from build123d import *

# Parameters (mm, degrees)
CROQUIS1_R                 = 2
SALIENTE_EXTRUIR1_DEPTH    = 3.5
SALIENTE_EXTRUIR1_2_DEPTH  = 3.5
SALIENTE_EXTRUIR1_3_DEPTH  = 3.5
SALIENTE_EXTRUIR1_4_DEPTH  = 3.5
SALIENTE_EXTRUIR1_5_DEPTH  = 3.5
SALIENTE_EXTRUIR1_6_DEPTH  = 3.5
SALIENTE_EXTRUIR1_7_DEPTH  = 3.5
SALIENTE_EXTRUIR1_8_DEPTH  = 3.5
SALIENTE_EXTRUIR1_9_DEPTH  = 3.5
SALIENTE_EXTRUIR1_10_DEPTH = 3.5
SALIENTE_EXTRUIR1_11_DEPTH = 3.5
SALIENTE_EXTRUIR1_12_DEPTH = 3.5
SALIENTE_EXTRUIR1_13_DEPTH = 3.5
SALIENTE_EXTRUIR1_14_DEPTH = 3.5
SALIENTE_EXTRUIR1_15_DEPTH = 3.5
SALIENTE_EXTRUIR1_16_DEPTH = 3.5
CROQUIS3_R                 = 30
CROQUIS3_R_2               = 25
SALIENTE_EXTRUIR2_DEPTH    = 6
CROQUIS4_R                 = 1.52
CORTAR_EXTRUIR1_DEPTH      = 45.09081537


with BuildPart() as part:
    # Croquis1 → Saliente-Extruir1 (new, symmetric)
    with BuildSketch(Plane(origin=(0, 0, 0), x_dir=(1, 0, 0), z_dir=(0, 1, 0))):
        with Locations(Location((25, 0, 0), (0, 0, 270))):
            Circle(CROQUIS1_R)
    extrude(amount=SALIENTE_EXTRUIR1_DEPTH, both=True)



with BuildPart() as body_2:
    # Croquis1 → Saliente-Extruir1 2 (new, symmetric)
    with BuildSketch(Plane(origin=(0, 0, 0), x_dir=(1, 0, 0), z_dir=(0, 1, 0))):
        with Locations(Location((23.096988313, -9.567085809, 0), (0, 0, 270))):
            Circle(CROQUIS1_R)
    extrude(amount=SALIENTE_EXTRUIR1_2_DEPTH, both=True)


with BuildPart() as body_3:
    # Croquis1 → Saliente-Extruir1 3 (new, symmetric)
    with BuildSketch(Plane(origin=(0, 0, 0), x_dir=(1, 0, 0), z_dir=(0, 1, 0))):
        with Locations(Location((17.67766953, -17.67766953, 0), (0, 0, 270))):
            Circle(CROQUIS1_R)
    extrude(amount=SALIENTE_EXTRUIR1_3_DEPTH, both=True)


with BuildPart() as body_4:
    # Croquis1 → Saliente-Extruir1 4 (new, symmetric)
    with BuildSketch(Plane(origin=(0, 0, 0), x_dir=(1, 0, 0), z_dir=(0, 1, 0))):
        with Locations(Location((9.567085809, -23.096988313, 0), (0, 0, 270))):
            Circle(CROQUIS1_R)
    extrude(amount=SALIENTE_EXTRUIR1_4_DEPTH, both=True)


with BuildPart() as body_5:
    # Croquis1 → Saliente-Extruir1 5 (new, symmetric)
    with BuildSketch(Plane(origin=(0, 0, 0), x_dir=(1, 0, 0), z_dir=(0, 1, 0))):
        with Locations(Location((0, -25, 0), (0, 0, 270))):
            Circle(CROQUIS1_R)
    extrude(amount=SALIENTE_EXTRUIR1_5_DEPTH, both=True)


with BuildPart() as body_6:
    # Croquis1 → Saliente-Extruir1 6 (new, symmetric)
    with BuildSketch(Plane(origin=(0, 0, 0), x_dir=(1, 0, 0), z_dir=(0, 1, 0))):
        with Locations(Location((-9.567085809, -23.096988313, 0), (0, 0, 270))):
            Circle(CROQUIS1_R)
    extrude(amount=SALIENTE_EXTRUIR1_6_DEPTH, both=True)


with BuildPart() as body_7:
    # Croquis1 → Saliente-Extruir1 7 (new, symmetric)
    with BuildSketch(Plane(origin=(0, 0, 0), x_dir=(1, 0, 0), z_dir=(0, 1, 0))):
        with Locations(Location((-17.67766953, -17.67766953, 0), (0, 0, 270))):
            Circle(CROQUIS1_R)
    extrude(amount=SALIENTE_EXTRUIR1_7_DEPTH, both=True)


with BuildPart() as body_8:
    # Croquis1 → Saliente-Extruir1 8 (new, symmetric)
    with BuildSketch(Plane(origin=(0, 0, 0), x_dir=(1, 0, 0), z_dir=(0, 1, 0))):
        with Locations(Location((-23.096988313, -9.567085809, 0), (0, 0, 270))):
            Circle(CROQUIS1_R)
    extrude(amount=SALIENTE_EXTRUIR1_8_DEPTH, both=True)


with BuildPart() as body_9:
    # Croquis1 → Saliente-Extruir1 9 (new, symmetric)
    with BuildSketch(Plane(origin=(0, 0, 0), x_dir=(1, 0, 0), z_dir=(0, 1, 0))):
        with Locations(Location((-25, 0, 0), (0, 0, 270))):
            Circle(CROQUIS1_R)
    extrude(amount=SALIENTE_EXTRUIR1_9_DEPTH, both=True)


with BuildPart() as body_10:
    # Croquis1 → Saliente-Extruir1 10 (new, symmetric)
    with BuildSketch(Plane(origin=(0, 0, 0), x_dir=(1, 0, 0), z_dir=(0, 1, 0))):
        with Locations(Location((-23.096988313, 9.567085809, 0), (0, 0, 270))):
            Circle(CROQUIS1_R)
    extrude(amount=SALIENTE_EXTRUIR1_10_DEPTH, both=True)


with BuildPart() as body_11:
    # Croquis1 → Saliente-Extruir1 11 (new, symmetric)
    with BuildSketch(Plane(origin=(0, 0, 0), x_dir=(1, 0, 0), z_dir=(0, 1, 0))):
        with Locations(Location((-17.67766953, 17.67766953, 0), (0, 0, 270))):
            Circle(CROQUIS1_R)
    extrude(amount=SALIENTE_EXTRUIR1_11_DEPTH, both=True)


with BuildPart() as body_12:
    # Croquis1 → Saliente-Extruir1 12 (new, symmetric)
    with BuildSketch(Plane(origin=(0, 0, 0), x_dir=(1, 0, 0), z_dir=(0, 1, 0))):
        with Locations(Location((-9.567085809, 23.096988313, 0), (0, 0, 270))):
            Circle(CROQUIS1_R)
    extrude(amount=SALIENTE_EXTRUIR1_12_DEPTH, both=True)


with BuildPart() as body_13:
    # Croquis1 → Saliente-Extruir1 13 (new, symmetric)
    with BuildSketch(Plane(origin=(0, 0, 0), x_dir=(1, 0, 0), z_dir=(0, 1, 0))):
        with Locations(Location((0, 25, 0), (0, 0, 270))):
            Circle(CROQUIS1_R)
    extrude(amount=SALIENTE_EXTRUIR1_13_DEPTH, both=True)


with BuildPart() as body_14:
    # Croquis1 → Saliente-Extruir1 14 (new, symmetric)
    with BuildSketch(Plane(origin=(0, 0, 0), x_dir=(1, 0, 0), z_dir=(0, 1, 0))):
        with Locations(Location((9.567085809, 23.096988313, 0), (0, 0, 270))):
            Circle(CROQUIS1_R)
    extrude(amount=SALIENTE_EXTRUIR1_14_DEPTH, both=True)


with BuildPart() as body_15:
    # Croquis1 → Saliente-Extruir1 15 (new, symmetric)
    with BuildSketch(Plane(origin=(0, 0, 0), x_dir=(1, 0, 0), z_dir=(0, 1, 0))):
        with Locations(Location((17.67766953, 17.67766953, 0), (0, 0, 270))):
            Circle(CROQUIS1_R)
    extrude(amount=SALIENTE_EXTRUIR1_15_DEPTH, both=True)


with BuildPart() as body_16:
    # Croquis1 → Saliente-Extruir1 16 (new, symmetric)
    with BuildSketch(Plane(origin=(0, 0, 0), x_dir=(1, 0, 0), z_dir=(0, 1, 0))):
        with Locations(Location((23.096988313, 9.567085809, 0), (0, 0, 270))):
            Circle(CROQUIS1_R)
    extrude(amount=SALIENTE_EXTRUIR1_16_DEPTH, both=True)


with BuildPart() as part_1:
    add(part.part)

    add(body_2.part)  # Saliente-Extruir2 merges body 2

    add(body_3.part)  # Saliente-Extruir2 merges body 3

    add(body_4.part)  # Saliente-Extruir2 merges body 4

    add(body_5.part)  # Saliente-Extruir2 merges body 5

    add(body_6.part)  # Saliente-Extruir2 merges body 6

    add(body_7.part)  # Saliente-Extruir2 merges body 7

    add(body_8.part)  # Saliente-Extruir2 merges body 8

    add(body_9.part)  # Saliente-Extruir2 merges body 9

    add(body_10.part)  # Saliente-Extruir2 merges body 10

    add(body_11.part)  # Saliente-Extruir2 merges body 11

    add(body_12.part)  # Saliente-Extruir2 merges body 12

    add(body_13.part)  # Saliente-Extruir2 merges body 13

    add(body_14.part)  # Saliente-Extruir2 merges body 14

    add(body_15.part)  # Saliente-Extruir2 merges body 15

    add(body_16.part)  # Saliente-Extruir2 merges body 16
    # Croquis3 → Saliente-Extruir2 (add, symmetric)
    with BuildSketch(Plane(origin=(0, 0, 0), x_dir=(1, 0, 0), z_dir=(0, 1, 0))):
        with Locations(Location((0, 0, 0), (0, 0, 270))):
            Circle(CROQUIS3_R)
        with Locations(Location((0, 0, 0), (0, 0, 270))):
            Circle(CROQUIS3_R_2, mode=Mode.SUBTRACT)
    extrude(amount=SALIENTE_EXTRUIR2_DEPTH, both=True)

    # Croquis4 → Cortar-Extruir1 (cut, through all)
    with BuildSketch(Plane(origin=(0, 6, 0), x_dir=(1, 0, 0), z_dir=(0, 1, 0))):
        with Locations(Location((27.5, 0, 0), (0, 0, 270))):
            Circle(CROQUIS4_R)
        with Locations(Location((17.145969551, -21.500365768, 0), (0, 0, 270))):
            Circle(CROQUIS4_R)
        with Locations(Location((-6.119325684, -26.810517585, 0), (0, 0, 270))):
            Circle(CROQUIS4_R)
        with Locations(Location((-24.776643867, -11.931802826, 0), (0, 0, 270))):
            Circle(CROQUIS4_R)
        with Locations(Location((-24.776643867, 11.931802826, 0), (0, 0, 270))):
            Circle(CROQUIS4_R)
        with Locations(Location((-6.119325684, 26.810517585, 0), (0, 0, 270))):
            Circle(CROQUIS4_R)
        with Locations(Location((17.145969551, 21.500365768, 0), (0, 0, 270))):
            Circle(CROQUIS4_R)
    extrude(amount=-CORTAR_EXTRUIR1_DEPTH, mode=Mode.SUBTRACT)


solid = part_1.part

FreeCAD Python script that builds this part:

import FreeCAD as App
import Part
import Sketcher

doc = App.newDocument("Part")
body = doc.addObject("PartDesign::Body", "Body")

# Sketch on XZ plane
sketch1 = body.newObject("Sketcher::SketchObject", "Sketch")
sketch1.AttachmentSupport = (doc.getObject("XZ_Plane"), [""])
sketch1.MapMode = "FlatFace"
sketch1.addGeometry(Part.Circle(App.Vector(25, 0, 0), App.Vector(0, 0, 1), 2), False)
sketch1.addConstraint([
    Sketcher.Constraint("PointOnObject", 0, 3, -1),
    Sketcher.Constraint("Diameter", 0, 4.0),
    Sketcher.Constraint("DistanceX", -1, 1, 0, 3, 25.0),
])
pad1 = body.newObject("PartDesign::Pad", "Pad")
pad1.Profile = sketch1
pad1.Length = 7
pad1.Midplane = True
body2 = doc.addObject("PartDesign::Body", "Body001")

# Sketch on XZ plane
sketch2 = body2.newObject("Sketcher::SketchObject", "Sketch001")
sketch2.AttachmentSupport = (doc.getObject("XZ_Plane001"), [""])
sketch2.MapMode = "FlatFace"
sketch2.addGeometry(Part.Circle(App.Vector(23.1, 9.6, 0), App.Vector(0, 0, 1), 2), False)
sketch2.addConstraint([
    Sketcher.Constraint("Diameter", 0, 4.0),
    Sketcher.Constraint("DistanceX", -1, 1, 0, 3, 23.096988),
    Sketcher.Constraint("DistanceY", -1, 1, 0, 3, 9.567086),
])
pad2 = body2.newObject("PartDesign::Pad", "Pad001")
pad2.Profile = sketch2
pad2.Length = 7
pad2.Midplane = True
body3 = doc.addObject("PartDesign::Body", "Body002")

# Sketch on XZ plane
sketch3 = body3.newObject("Sketcher::SketchObject", "Sketch002")
sketch3.AttachmentSupport = (doc.getObject("XZ_Plane002"), [""])
sketch3.MapMode = "FlatFace"
sketch3.addGeometry(Part.Circle(App.Vector(17.7, 17.7, 0), App.Vector(0, 0, 1), 2), False)
sketch3.addConstraint([
    Sketcher.Constraint("Diameter", 0, 4.0),
    Sketcher.Constraint("DistanceX", -1, 1, 0, 3, 17.67767),
    Sketcher.Constraint("DistanceY", -1, 1, 0, 3, 17.67767),
])
pad3 = body3.newObject("PartDesign::Pad", "Pad002")
pad3.Profile = sketch3
pad3.Length = 7
pad3.Midplane = True
body4 = doc.addObject("PartDesign::Body", "Body003")

# Sketch on XZ plane
sketch4 = body4.newObject("Sketcher::SketchObject", "Sketch003")
sketch4.AttachmentSupport = (doc.getObject("XZ_Plane003"), [""])
sketch4.MapMode = "FlatFace"
sketch4.addGeometry(Part.Circle(App.Vector(9.6, 23.1, 0), App.Vector(0, 0, 1), 2), False)
sketch4.addConstraint([
    Sketcher.Constraint("Diameter", 0, 4.0),
    Sketcher.Constraint("DistanceY", -1, 1, 0, 3, 23.096988),
    Sketcher.Constraint("DistanceX", -1, 1, 0, 3, 9.567086),
])
pad4 = body4.newObject("PartDesign::Pad", "Pad003")
pad4.Profile = sketch4
pad4.Length = 7
pad4.Midplane = True
body5 = doc.addObject("PartDesign::Body", "Body004")

# Sketch on XZ plane
sketch5 = body5.newObject("Sketcher::SketchObject", "Sketch004")
sketch5.AttachmentSupport = (doc.getObject("XZ_Plane004"), [""])
sketch5.MapMode = "FlatFace"
sketch5.addGeometry(Part.Circle(App.Vector(0, 25, 0), App.Vector(0, 0, 1), 2), False)
sketch5.addConstraint([
    Sketcher.Constraint("PointOnObject", 0, 3, -2),
    Sketcher.Constraint("Diameter", 0, 4.0),
    Sketcher.Constraint("DistanceY", -1, 1, 0, 3, 25.0),
])
pad5 = body5.newObject("PartDesign::Pad", "Pad004")
pad5.Profile = sketch5
pad5.Length = 7
pad5.Midplane = True
body6 = doc.addObject("PartDesign::Body", "Body005")

# Sketch on XZ plane
sketch6 = body6.newObject("Sketcher::SketchObject", "Sketch005")
sketch6.AttachmentSupport = (doc.getObject("XZ_Plane005"), [""])
sketch6.MapMode = "FlatFace"
sketch6.addGeometry(Part.Circle(App.Vector(-9.6, 23.1, 0), App.Vector(0, 0, 1), 2), False)
sketch6.addConstraint([
    Sketcher.Constraint("Diameter", 0, 4.0),
    Sketcher.Constraint("DistanceY", -1, 1, 0, 3, 23.096988),
    Sketcher.Constraint("DistanceX", 0, 3, -1, 1, 9.567086),
])
pad6 = body6.newObject("PartDesign::Pad", "Pad005")
pad6.Profile = sketch6
pad6.Length = 7
pad6.Midplane = True
body7 = doc.addObject("PartDesign::Body", "Body006")

# Sketch on XZ plane
sketch7 = body7.newObject("Sketcher::SketchObject", "Sketch006")
sketch7.AttachmentSupport = (doc.getObject("XZ_Plane006"), [""])
sketch7.MapMode = "FlatFace"
sketch7.addGeometry(Part.Circle(App.Vector(-17.7, 17.7, 0), App.Vector(0, 0, 1), 2), False)
sketch7.addConstraint([
    Sketcher.Constraint("Diameter", 0, 4.0),
    Sketcher.Constraint("DistanceX", 0, 3, -1, 1, 17.67767),
    Sketcher.Constraint("DistanceY", -1, 1, 0, 3, 17.67767),
])
pad7 = body7.newObject("PartDesign::Pad", "Pad006")
pad7.Profile = sketch7
pad7.Length = 7
pad7.Midplane = True
body8 = doc.addObject("PartDesign::Body", "Body007")

# Sketch on XZ plane
sketch8 = body8.newObject("Sketcher::SketchObject", "Sketch007")
sketch8.AttachmentSupport = (doc.getObject("XZ_Plane007"), [""])
sketch8.MapMode = "FlatFace"
sketch8.addGeometry(Part.Circle(App.Vector(-23.1, 9.6, 0), App.Vector(0, 0, 1), 2), False)
sketch8.addConstraint([
    Sketcher.Constraint("Diameter", 0, 4.0),
    Sketcher.Constraint("DistanceX", 0, 3, -1, 1, 23.096988),
    Sketcher.Constraint("DistanceY", -1, 1, 0, 3, 9.567086),
])
pad8 = body8.newObject("PartDesign::Pad", "Pad007")
pad8.Profile = sketch8
pad8.Length = 7
pad8.Midplane = True
body9 = doc.addObject("PartDesign::Body", "Body008")

# Sketch on XZ plane
sketch9 = body9.newObject("Sketcher::SketchObject", "Sketch008")
sketch9.AttachmentSupport = (doc.getObject("XZ_Plane008"), [""])
sketch9.MapMode = "FlatFace"
sketch9.addGeometry(Part.Circle(App.Vector(-25, 0, 0), App.Vector(0, 0, 1), 2), False)
sketch9.addConstraint([
    Sketcher.Constraint("PointOnObject", 0, 3, -1),
    Sketcher.Constraint("Diameter", 0, 4.0),
    Sketcher.Constraint("DistanceX", 0, 3, -1, 1, 25.0),
])
pad9 = body9.newObject("PartDesign::Pad", "Pad008")
pad9.Profile = sketch9
pad9.Length = 7
pad9.Midplane = True
body10 = doc.addObject("PartDesign::Body", "Body009")

# Sketch on XZ plane
sketch10 = body10.newObject("Sketcher::SketchObject", "Sketch009")
sketch10.AttachmentSupport = (doc.getObject("XZ_Plane009"), [""])
sketch10.MapMode = "FlatFace"
sketch10.addGeometry(Part.Circle(App.Vector(-23.1, -9.6, 0), App.Vector(0, 0, 1), 2), False)
sketch10.addConstraint([
    Sketcher.Constraint("Diameter", 0, 4.0),
    Sketcher.Constraint("DistanceX", 0, 3, -1, 1, 23.096988),
    Sketcher.Constraint("DistanceY", 0, 3, -1, 1, 9.567086),
])
pad10 = body10.newObject("PartDesign::Pad", "Pad009")
pad10.Profile = sketch10
pad10.Length = 7
pad10.Midplane = True
body11 = doc.addObject("PartDesign::Body", "Body010")

# Sketch on XZ plane
sketch11 = body11.newObject("Sketcher::SketchObject", "Sketch010")
sketch11.AttachmentSupport = (doc.getObject("XZ_Plane010"), [""])
sketch11.MapMode = "FlatFace"
sketch11.addGeometry(Part.Circle(App.Vector(-17.7, -17.7, 0), App.Vector(0, 0, 1), 2), False)
sketch11.addConstraint([
    Sketcher.Constraint("Diameter", 0, 4.0),
    Sketcher.Constraint("DistanceX", 0, 3, -1, 1, 17.67767),
    Sketcher.Constraint("DistanceY", 0, 3, -1, 1, 17.67767),
])
pad11 = body11.newObject("PartDesign::Pad", "Pad010")
pad11.Profile = sketch11
pad11.Length = 7
pad11.Midplane = True
body12 = doc.addObject("PartDesign::Body", "Body011")

# Sketch on XZ plane
sketch12 = body12.newObject("Sketcher::SketchObject", "Sketch011")
sketch12.AttachmentSupport = (doc.getObject("XZ_Plane011"), [""])
sketch12.MapMode = "FlatFace"
sketch12.addGeometry(Part.Circle(App.Vector(-9.6, -23.1, 0), App.Vector(0, 0, 1), 2), False)
sketch12.addConstraint([
    Sketcher.Constraint("Diameter", 0, 4.0),
    Sketcher.Constraint("DistanceY", 0, 3, -1, 1, 23.096988),
    Sketcher.Constraint("DistanceX", 0, 3, -1, 1, 9.567086),
])
pad12 = body12.newObject("PartDesign::Pad", "Pad011")
pad12.Profile = sketch12
pad12.Length = 7
pad12.Midplane = True
body13 = doc.addObject("PartDesign::Body", "Body012")

# Sketch on XZ plane
sketch13 = body13.newObject("Sketcher::SketchObject", "Sketch012")
sketch13.AttachmentSupport = (doc.getObject("XZ_Plane012"), [""])
sketch13.MapMode = "FlatFace"
sketch13.addGeometry(Part.Circle(App.Vector(0, -25, 0), App.Vector(0, 0, 1), 2), False)
sketch13.addConstraint([
    Sketcher.Constraint("PointOnObject", 0, 3, -2),
    Sketcher.Constraint("Diameter", 0, 4.0),
    Sketcher.Constraint("DistanceY", 0, 3, -1, 1, 25.0),
])
pad13 = body13.newObject("PartDesign::Pad", "Pad012")
pad13.Profile = sketch13
pad13.Length = 7
pad13.Midplane = True
body14 = doc.addObject("PartDesign::Body", "Body013")

# Sketch on XZ plane
sketch14 = body14.newObject("Sketcher::SketchObject", "Sketch013")
sketch14.AttachmentSupport = (doc.getObject("XZ_Plane013"), [""])
sketch14.MapMode = "FlatFace"
sketch14.addGeometry(Part.Circle(App.Vector(9.6, -23.1, 0), App.Vector(0, 0, 1), 2), False)
sketch14.addConstraint([
    Sketcher.Constraint("Diameter", 0, 4.0),
    Sketcher.Constraint("DistanceY", 0, 3, -1, 1, 23.096988),
    Sketcher.Constraint("DistanceX", -1, 1, 0, 3, 9.567086),
])
pad14 = body14.newObject("PartDesign::Pad", "Pad013")
pad14.Profile = sketch14
pad14.Length = 7
pad14.Midplane = True
body15 = doc.addObject("PartDesign::Body", "Body014")

# Sketch on XZ plane
sketch15 = body15.newObject("Sketcher::SketchObject", "Sketch014")
sketch15.AttachmentSupport = (doc.getObject("XZ_Plane014"), [""])
sketch15.MapMode = "FlatFace"
sketch15.addGeometry(Part.Circle(App.Vector(17.7, -17.7, 0), App.Vector(0, 0, 1), 2), False)
sketch15.addConstraint([
    Sketcher.Constraint("Diameter", 0, 4.0),
    Sketcher.Constraint("DistanceX", -1, 1, 0, 3, 17.67767),
    Sketcher.Constraint("DistanceY", 0, 3, -1, 1, 17.67767),
])
pad15 = body15.newObject("PartDesign::Pad", "Pad014")
pad15.Profile = sketch15
pad15.Length = 7
pad15.Midplane = True
body16 = doc.addObject("PartDesign::Body", "Body015")

# Sketch on XZ plane
sketch16 = body16.newObject("Sketcher::SketchObject", "Sketch015")
sketch16.AttachmentSupport = (doc.getObject("XZ_Plane015"), [""])
sketch16.MapMode = "FlatFace"
sketch16.addGeometry(Part.Circle(App.Vector(23.1, -9.6, 0), App.Vector(0, 0, 1), 2), False)
sketch16.addConstraint([
    Sketcher.Constraint("Diameter", 0, 4.0),
    Sketcher.Constraint("DistanceX", -1, 1, 0, 3, 23.096988),
    Sketcher.Constraint("DistanceY", 0, 3, -1, 1, 9.567086),
])
pad16 = body16.newObject("PartDesign::Pad", "Pad015")
pad16.Profile = sketch16
pad16.Length = 7
pad16.Midplane = True
body.AllowCompound = True
doc.recompute()

boolean = body.newObject("PartDesign::Boolean", "Boolean")
boolean.Type = "Fuse"
boolean.addObjects([body2])
doc.recompute()

boolean2 = body.newObject("PartDesign::Boolean", "Boolean001")
boolean2.Type = "Fuse"
boolean2.addObjects([body3])
doc.recompute()

boolean3 = body.newObject("PartDesign::Boolean", "Boolean002")
boolean3.Type = "Fuse"
boolean3.addObjects([body4])
doc.recompute()

boolean4 = body.newObject("PartDesign::Boolean", "Boolean003")
boolean4.Type = "Fuse"
boolean4.addObjects([body5])
doc.recompute()

boolean5 = body.newObject("PartDesign::Boolean", "Boolean004")
boolean5.Type = "Fuse"
boolean5.addObjects([body6])
doc.recompute()

boolean6 = body.newObject("PartDesign::Boolean", "Boolean005")
boolean6.Type = "Fuse"
boolean6.addObjects([body7])
doc.recompute()

boolean7 = body.newObject("PartDesign::Boolean", "Boolean006")
boolean7.Type = "Fuse"
boolean7.addObjects([body8])
doc.recompute()

boolean8 = body.newObject("PartDesign::Boolean", "Boolean007")
boolean8.Type = "Fuse"
boolean8.addObjects([body9])
doc.recompute()

boolean9 = body.newObject("PartDesign::Boolean", "Boolean008")
boolean9.Type = "Fuse"
boolean9.addObjects([body10])
doc.recompute()

boolean10 = body.newObject("PartDesign::Boolean", "Boolean009")
boolean10.Type = "Fuse"
boolean10.addObjects([body11])
doc.recompute()

boolean11 = body.newObject("PartDesign::Boolean", "Boolean010")
boolean11.Type = "Fuse"
boolean11.addObjects([body12])
doc.recompute()

boolean12 = body.newObject("PartDesign::Boolean", "Boolean011")
boolean12.Type = "Fuse"
boolean12.addObjects([body13])
doc.recompute()

boolean13 = body.newObject("PartDesign::Boolean", "Boolean012")
boolean13.Type = "Fuse"
boolean13.addObjects([body14])
doc.recompute()

boolean14 = body.newObject("PartDesign::Boolean", "Boolean013")
boolean14.Type = "Fuse"
boolean14.addObjects([body15])
doc.recompute()

boolean15 = body.newObject("PartDesign::Boolean", "Boolean014")
boolean15.Type = "Fuse"
boolean15.addObjects([body16])

# Sketch on XZ plane
sketch17 = body.newObject("Sketcher::SketchObject", "Sketch016")
sketch17.AttachmentSupport = (doc.getObject("XZ_Plane"), [""])
sketch17.MapMode = "FlatFace"
sketch17.addGeometry([
    Part.Circle(App.Vector(0, 0, 0), App.Vector(0, 0, 1), 30),
    Part.Circle(App.Vector(0, 0, 0), App.Vector(0, 0, 1), 25),
], False)
sketch17.addConstraint([
    Sketcher.Constraint("Coincident", 0, 3, -1, 1),
    Sketcher.Constraint("Coincident", 1, 3, -1, 1),
    Sketcher.Constraint("Diameter", 0, 60.0),
    Sketcher.Constraint("Diameter", 1, 50.0),
])
pad17 = body.newObject("PartDesign::Pad", "Pad016")
pad17.Profile = sketch17
pad17.Length = 12
pad17.Midplane = True

# Sketch on XZ plane
sketch18 = body.newObject("Sketcher::SketchObject", "Sketch017")
sketch18.AttachmentSupport = (doc.getObject("XZ_Plane"), [""])
sketch18.MapMode = "FlatFace"
sketch18.AttachmentOffset = App.Placement(App.Vector(0, 0, -6), App.Rotation())
sketch18.addGeometry([
    Part.Circle(App.Vector(27.5, 0, 0), App.Vector(0, 0, 1), 1.5),  # 0
    Part.Circle(App.Vector(17.1, 21.5, 0), App.Vector(0, 0, 1), 1.5),  # 1
    Part.Circle(App.Vector(-6.1, 26.8, 0), App.Vector(0, 0, 1), 1.5),  # 2
    Part.Circle(App.Vector(-24.8, 11.9, 0), App.Vector(0, 0, 1), 1.5),  # 3
    Part.Circle(App.Vector(-24.8, -11.9, 0), App.Vector(0, 0, 1), 1.5),  # 4
    Part.Circle(App.Vector(-6.1, -26.8, 0), App.Vector(0, 0, 1), 1.5),  # 5
    Part.Circle(App.Vector(17.1, -21.5, 0), App.Vector(0, 0, 1), 1.5),  # 6
], False)
sketch18.addConstraint([
    Sketcher.Constraint("Equal", 0, 1),
    Sketcher.Constraint("Equal", 1, 2),
    Sketcher.Constraint("Equal", 2, 3),
    Sketcher.Constraint("Equal", 3, 4),
    Sketcher.Constraint("Equal", 4, 5),
    Sketcher.Constraint("Equal", 5, 6),
    Sketcher.Constraint("Symmetric", 3, 3, 4, 3, -1),
    Sketcher.Constraint("Symmetric", 2, 3, 5, 3, -1),
    Sketcher.Constraint("Symmetric", 1, 3, 6, 3, -1),
    Sketcher.Constraint("PointOnObject", 0, 3, -1),
    Sketcher.Constraint("Diameter", 0, 3.04),
    Sketcher.Constraint("DistanceX", -1, 1, 0, 3, 27.5),
    Sketcher.Constraint("DistanceX", -1, 1, 1, 3, 17.14597),
    Sketcher.Constraint("DistanceY", 1, 3, 2, 3, 5.310152),
    Sketcher.Constraint("DistanceX", 3, 3, 2, 3, 18.657318),
    Sketcher.Constraint("DistanceY", 4, 3, 2, 3, 38.74232),
    Sketcher.Constraint("DistanceY", 6, 3, 1, 3, 43.000732),
    Sketcher.Constraint("DistanceX", 2, 3, -1, 1, 6.119326),
])
pocket1 = body.newObject("PartDesign::Pocket", "Pocket")
pocket1.Profile = sketch18
pocket1.Type = "ThroughAll"
pocket1.Reversed = True

doc.recompute()
